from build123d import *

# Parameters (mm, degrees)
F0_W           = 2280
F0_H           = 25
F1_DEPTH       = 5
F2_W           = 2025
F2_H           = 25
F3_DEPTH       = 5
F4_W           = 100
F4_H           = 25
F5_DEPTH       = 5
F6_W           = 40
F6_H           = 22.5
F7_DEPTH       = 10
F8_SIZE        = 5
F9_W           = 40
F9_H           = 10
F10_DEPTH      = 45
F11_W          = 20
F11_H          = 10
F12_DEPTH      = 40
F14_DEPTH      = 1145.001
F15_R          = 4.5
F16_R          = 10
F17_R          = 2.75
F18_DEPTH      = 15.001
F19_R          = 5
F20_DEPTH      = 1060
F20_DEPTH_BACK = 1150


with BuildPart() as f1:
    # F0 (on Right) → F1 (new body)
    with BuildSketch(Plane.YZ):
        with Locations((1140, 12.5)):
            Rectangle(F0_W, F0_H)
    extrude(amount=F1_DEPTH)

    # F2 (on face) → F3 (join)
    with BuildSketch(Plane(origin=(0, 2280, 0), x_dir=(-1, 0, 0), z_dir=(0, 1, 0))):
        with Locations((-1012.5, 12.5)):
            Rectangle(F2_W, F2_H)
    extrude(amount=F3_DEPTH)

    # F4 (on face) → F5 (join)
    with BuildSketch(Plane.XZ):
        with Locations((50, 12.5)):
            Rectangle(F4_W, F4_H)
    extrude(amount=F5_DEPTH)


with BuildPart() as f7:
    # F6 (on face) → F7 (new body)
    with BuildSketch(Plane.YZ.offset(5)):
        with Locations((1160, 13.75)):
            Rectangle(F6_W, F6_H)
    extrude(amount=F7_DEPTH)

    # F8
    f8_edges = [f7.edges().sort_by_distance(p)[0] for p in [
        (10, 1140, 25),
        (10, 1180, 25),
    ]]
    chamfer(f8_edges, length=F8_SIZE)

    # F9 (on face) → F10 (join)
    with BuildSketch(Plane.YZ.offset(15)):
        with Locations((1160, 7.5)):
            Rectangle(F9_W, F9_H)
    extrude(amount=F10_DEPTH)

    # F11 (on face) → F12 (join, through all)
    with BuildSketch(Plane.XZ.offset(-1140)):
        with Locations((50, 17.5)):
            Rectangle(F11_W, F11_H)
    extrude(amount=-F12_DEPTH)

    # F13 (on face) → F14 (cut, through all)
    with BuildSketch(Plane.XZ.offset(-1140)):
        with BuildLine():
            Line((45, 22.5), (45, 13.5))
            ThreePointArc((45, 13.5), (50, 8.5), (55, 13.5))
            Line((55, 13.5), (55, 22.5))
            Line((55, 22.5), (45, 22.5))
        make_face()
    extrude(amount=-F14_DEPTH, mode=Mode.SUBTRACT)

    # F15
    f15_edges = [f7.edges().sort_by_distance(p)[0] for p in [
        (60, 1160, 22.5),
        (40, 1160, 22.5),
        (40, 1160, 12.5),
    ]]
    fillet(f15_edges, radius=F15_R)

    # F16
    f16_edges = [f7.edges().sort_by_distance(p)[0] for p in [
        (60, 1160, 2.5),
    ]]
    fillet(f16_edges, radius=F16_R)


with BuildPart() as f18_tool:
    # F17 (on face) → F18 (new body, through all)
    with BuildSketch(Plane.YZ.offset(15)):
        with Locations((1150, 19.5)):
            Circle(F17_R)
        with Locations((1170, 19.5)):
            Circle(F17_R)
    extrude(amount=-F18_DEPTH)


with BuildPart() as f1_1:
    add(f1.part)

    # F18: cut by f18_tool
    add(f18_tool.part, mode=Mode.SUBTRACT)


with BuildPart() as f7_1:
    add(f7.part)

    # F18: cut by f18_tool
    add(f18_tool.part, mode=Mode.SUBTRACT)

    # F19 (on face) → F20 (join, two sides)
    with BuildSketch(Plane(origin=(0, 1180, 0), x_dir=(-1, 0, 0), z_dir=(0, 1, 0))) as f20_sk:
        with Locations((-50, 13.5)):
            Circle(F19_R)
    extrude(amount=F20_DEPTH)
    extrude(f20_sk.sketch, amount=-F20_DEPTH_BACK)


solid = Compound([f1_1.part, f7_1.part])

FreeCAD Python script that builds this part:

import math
import FreeCAD as App
import Part
import Sketcher

V = App.Vector
Q = App.Units.Quantity


def edges_at(feature, points):
    """Names of the edges that pass closest to the given points."""
    edges = feature.Shape.Edges
    near = lambda p: min(range(len(edges)), key=lambda i: edges[i].distToShape(Part.Vertex(*p))[0])
    return sorted({f"Edge{near(p) + 1}" for p in points})


def add_polygon(sketch, points):
    """Adds a closed chain of lines whose ends are joined by coincident constraints."""
    first, n = sketch.GeometryCount, len(points)
    for a, b in zip(points, points[1:] + points[:1]):
        sketch.addGeometry(Part.LineSegment(App.Vector(*a, 0), App.Vector(*b, 0)), False)
    for i in range(n):
        sketch.addConstraint(Sketcher.Constraint("Coincident", first + i, 2, first + (i + 1) % n, 1))

doc = App.newDocument("Part")
body = doc.addObject("PartDesign::Body", "Body")

# Sketch on YZ plane
sketch1 = body.newObject("Sketcher::SketchObject", "Sketch")
sketch1.AttachmentSupport = (doc.getObject("YZ_Plane"), [""])
sketch1.MapMode = "FlatFace"
add_polygon(sketch1, [(0, 25), (0, 0), (2280, 0), (2280, 25)])  # lines 0-3
sketch1.addConstraint([
    Sketcher.Constraint("Vertical", 0),
    Sketcher.Constraint("Horizontal", 1),
    Sketcher.Constraint("Vertical", 2),
    Sketcher.Constraint("Horizontal", 3),
    Sketcher.Constraint("Coincident", 0, 2, -1, 1),
    Sketcher.Constraint("DistanceX", 1, 1, 1, 2, Q("2280 mm")),
    Sketcher.Constraint("DistanceY", 0, 2, 0, 1, Q("25 mm")),
])
pad1 = body.newObject("PartDesign::Pad", "Pad")
pad1.Profile = sketch1
pad1.Length = 5

# Sketch on XZ plane
sketch2 = body.newObject("Sketcher::SketchObject", "Sketch001")
sketch2.AttachmentSupport = (doc.getObject("XZ_Plane"), [""])
sketch2.MapMode = "FlatFace"
sketch2.AttachmentOffset = App.Placement(V(0, 0, -2280), App.Rotation())
add_polygon(sketch2, [(2025, 25), (2025, 0), (0, 0), (0, 25)])  # lines 0-3
sketch2.addConstraint([
    Sketcher.Constraint("Vertical", 0),
    Sketcher.Constraint("Horizontal", 1),
    Sketcher.Constraint("Vertical", 2),
    Sketcher.Constraint("Horizontal", 3),
    Sketcher.Constraint("Coincident", 1, 2, -1, 1),
    Sketcher.Constraint("DistanceX", 1, 2, 1, 1, Q("2025 mm")),
    Sketcher.Constraint("DistanceY", 0, 2, 0, 1, Q("25 mm")),
])
pad2 = body.newObject("PartDesign::Pad", "Pad001")
pad2.Profile = sketch2
pad2.Length = 5
pad2.Reversed = True

# Sketch on XZ plane
sketch3 = body.newObject("Sketcher::SketchObject", "Sketch002")
sketch3.AttachmentSupport = (doc.getObject("XZ_Plane"), [""])
sketch3.MapMode = "FlatFace"
add_polygon(sketch3, [(0, 25), (0, 0), (100, 0), (100, 25)])  # lines 0-3
sketch3.addConstraint([
    Sketcher.Constraint("Vertical", 0),
    Sketcher.Constraint("Horizontal", 1),
    Sketcher.Constraint("Vertical", 2),
    Sketcher.Constraint("Horizontal", 3),
    Sketcher.Constraint("Coincident", 0, 2, -1, 1),
    Sketcher.Constraint("DistanceX", 1, 1, 1, 2, Q("100 mm")),
    Sketcher.Constraint("DistanceY", 0, 2, 0, 1, Q("25 mm")),
])
pad3 = body.newObject("PartDesign::Pad", "Pad002")
pad3.Profile = sketch3
pad3.Length = 5
body2 = doc.addObject("PartDesign::Body", "Body001")

# Sketch on YZ plane
sketch4 = body2.newObject("Sketcher::SketchObject", "Sketch003")
sketch4.AttachmentSupport = (doc.getObject("YZ_Plane001"), [""])
sketch4.MapMode = "FlatFace"
sketch4.AttachmentOffset = App.Placement(V(0, 0, 5), App.Rotation())
add_polygon(sketch4, [(1140, 25), (1140, 2), (1180, 2), (1180, 25)])  # lines 0-3
sketch4.addConstraint([
    Sketcher.Constraint("Vertical", 0),
    Sketcher.Constraint("Horizontal", 1),
    Sketcher.Constraint("Vertical", 2),
    Sketcher.Constraint("Horizontal", 3),
    Sketcher.Constraint("DistanceX", 1, 1, 1, 2, Q("40 mm")),
    Sketcher.Constraint("DistanceY", 0, 2, 0, 1, Q("22.5 mm")),
    Sketcher.Constraint("DistanceX", -1, 1, 0, 2, Q("1140 mm")),
    Sketcher.Constraint("DistanceY", -1, 1, 2, 2, Q("25 mm")),
])
pad4 = body2.newObject("PartDesign::Pad", "Pad003")
pad4.Profile = sketch4
pad4.Length = 10
doc.recompute()

chamfer = body2.newObject("PartDesign::Chamfer", "Chamfer")
chamfer.Base = (pad4, edges_at(pad4, [(10, 1140, 25), (10, 1180, 25)]))
chamfer.Size = 5

# Sketch on YZ plane
sketch5 = body2.newObject("Sketcher::SketchObject", "Sketch004")
sketch5.AttachmentSupport = (doc.getObject("YZ_Plane001"), [""])
sketch5.MapMode = "FlatFace"
sketch5.AttachmentOffset = App.Placement(V(0, 0, 15), App.Rotation())
add_polygon(sketch5, [(1140, 12), (1140, 2), (1180, 2), (1180, 12)])  # lines 0-3
sketch5.addConstraint([
    Sketcher.Constraint("Vertical", 0),
    Sketcher.Constraint("Horizontal", 1),
    Sketcher.Constraint("Vertical", 2),
    Sketcher.Constraint("Horizontal", 3),
    Sketcher.Constraint("DistanceX", 1, 1, 1, 2, Q("40 mm")),
    Sketcher.Constraint("DistanceY", 0, 2, 0, 1, Q("10 mm")),
    Sketcher.Constraint("DistanceX", -1, 1, 0, 2, Q("1140 mm")),
    Sketcher.Constraint("DistanceY", -1, 1, 0, 2, Q("2.5 mm")),
])
pad5 = body2.newObject("PartDesign::Pad", "Pad004")
pad5.Profile = sketch5
pad5.Length = 45

# Sketch on XZ plane
sketch6 = body2.newObject("Sketcher::SketchObject", "Sketch005")
sketch6.AttachmentSupport = (doc.getObject("XZ_Plane001"), [""])
sketch6.MapMode = "FlatFace"
sketch6.AttachmentOffset = App.Placement(V(0, 0, -1140), App.Rotation())
add_polygon(sketch6, [(40, 22), (40, 12), (60, 12), (60, 22)])  # lines 0-3
sketch6.addConstraint([
    Sketcher.Constraint("Vertical", 0),
    Sketcher.Constraint("Horizontal", 1),
    Sketcher.Constraint("Vertical", 2),
    Sketcher.Constraint("Horizontal", 3),
    Sketcher.Constraint("DistanceX", 1, 1, 1, 2, Q("20 mm")),
    Sketcher.Constraint("DistanceY", 0, 2, 0, 1, Q("10 mm")),
    Sketcher.Constraint("DistanceX", -1, 1, 0, 2, Q("40 mm")),
    Sketcher.Constraint("DistanceY", -1, 1, 0, 2, Q("12.5 mm")),
])
pad6 = body2.newObject("PartDesign::Pad", "Pad005")
pad6.Profile = sketch6
pad6.Length = 40
pad6.Reversed = True

# Sketch on XZ plane
sketch7 = body2.newObject("Sketcher::SketchObject", "Sketch006")
sketch7.AttachmentSupport = (doc.getObject("XZ_Plane001"), [""])
sketch7.MapMode = "FlatFace"
sketch7.AttachmentOffset = App.Placement(V(0, 0, -1140), App.Rotation())
sketch7.addGeometry([
    Part.LineSegment(V(45, 22, 0), V(45, 14, 0)),
    Part.ArcOfCircle(Part.Circle(V(50, 14, 0), V(0, 0, 1), 5), math.radians(180), math.radians(360)),
    Part.LineSegment(V(55, 14, 0), V(55, 22, 0)),
    Part.LineSegment(V(55, 22, 0), V(45, 22, 0)),
], False)
sketch7.addConstraint([
    Sketcher.Constraint("Tangent", 0, 2, 1, 1),
    Sketcher.Constraint("Tangent", 1, 2, 2, 1),
    Sketcher.Constraint("Coincident", 2, 2, 3, 1),
    Sketcher.Constraint("Coincident", 3, 2, 0, 1),
    Sketcher.Constraint("Vertical", 0),
    Sketcher.Constraint("Vertical", 2),
    Sketcher.Constraint("Horizontal", 3),
    Sketcher.Constraint("Radius", 1, Q("5 mm")),
    Sketcher.Constraint("DistanceY", 0, 2, 0, 1, Q("9 mm")),
    Sketcher.Constraint("DistanceX", -1, 1, 1, 3, Q("50 mm")),
    Sketcher.Constraint("DistanceY", -1, 1, 1, 3, Q("13.5 mm")),
])
pocket1 = body2.newObject("PartDesign::Pocket", "Pocket")
pocket1.Profile = sketch7
pocket1.Type = "ThroughAll"
doc.recompute()

fillet = body2.newObject("PartDesign::Fillet", "Fillet")
fillet.Base = (pocket1, edges_at(pocket1, [(60, 1160, 22.5), (40, 1160, 22.5), (40, 1160, 12.5)]))
fillet.Radius = 4.5
doc.recompute()

fillet2 = body2.newObject("PartDesign::Fillet", "Fillet001")
fillet2.Base = (fillet, edges_at(fillet, [(60, 1160, 2.5)]))
fillet2.Radius = 10
body3 = doc.addObject("PartDesign::Body", "Body002")
body3.AllowCompound = True

# Sketch on YZ plane
sketch8 = body3.newObject("Sketcher::SketchObject", "Sketch007")
sketch8.AttachmentSupport = (doc.getObject("YZ_Plane002"), [""])
sketch8.MapMode = "FlatFace"
sketch8.AttachmentOffset = App.Placement(V(0, 0, 15), App.Rotation())
sketch8.addGeometry([
    Part.Circle(V(1150, 19.5, 0), V(0, 0, 1), 2.8),
    Part.Circle(V(1170, 19.5, 0), V(0, 0, 1), 2.8),
], False)
sketch8.addConstraint([
    Sketcher.Constraint("Equal", 0, 1),
    Sketcher.Constraint("Horizontal", 0, 3, 1, 3),
    Sketcher.Constraint("Diameter", 0, Q("5.5 mm")),
    Sketcher.Constraint("DistanceX", -1, 1, 0, 3, Q("1150 mm")),
    Sketcher.Constraint("DistanceX", -1, 1, 1, 3, Q("1170 mm")),
    Sketcher.Constraint("DistanceY", -1, 1, 0, 3, Q("19.5 mm")),
])
pad7 = body3.newObject("PartDesign::Pad", "Pad006")
pad7.Profile = sketch8
pad7.Length = 15.001
pad7.Reversed = True
doc.recompute()

body4 = doc.addObject("PartDesign::Body", "Body003")
body4.BaseFeature = body3
boolean = body.newObject("PartDesign::Boolean", "Boolean")
boolean.Type = "Cut"
boolean.addObjects([body4])
doc.recompute()

boolean2 = body2.newObject("PartDesign::Boolean", "Boolean001")
boolean2.Type = "Cut"
boolean2.addObjects([body3])

# Sketch on XZ plane
sketch9 = body2.newObject("Sketcher::SketchObject", "Sketch008")
sketch9.AttachmentSupport = (doc.getObject("XZ_Plane001"), [""])
sketch9.MapMode = "FlatFace"
sketch9.AttachmentOffset = App.Placement(V(0, 0, -1180), App.Rotation())
sketch9.addGeometry(Part.Circle(V(50, 14, 0), V(0, 0, 1), 5), False)
sketch9.addConstraint([
    Sketcher.Constraint("Diameter", 0, Q("10 mm")),
    Sketcher.Constraint("DistanceX", -1, 1, 0, 3, Q("50 mm")),
    Sketcher.Constraint("DistanceY", -1, 1, 0, 3, Q("13.5 mm")),
])
pad8 = body2.newObject("PartDesign::Pad", "Pad007")
pad8.Profile = sketch9
pad8.Type = "TwoLengths"
pad8.Length = 1060
pad8.Length2 = 1150
pad8.Reversed = True

doc.recompute()
